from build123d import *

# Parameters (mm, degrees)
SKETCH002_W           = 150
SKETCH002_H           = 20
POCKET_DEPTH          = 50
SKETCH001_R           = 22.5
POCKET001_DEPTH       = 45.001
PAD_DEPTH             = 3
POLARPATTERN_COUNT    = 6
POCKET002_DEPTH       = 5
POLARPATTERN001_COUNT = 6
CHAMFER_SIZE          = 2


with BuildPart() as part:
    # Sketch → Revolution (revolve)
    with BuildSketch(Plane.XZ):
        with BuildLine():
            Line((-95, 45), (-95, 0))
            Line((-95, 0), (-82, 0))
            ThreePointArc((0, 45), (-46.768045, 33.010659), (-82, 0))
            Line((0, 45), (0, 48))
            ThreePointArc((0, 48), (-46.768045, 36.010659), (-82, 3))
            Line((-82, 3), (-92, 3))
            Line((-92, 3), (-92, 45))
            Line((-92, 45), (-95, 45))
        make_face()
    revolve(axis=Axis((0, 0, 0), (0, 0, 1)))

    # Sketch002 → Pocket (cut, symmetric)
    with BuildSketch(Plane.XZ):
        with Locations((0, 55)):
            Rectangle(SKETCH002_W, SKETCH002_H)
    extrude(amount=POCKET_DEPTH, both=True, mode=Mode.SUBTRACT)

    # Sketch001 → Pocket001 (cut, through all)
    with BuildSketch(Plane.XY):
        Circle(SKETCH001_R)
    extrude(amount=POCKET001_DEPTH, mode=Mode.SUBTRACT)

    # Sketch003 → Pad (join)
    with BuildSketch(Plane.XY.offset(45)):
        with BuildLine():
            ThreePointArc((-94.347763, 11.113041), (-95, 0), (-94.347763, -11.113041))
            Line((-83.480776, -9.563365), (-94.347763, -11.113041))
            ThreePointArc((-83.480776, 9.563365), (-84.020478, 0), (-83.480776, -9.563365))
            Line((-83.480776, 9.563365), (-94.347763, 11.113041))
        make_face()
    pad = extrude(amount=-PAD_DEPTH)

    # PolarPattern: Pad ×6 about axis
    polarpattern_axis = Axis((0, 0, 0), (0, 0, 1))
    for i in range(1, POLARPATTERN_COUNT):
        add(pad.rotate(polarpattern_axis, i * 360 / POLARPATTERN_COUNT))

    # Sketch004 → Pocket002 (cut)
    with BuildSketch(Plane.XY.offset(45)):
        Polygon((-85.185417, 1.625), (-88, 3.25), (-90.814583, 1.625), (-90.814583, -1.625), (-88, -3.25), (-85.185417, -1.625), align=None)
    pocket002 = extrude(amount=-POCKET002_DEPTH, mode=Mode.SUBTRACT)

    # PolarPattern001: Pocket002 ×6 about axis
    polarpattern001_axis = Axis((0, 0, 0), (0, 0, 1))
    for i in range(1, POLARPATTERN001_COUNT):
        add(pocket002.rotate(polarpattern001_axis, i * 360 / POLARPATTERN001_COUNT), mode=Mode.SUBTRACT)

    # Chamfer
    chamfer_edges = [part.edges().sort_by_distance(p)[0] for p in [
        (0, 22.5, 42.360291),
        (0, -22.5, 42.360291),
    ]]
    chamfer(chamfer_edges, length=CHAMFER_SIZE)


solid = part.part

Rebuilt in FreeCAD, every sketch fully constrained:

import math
import FreeCAD as App
import Part
import Sketcher
Q = App.Units.Quantity


def edges_at(feature, points):
    """Names of the edges that pass closest to the given points."""
    edges = feature.Shape.Edges
    near = lambda p: min(range(len(edges)), key=lambda i: edges[i].distToShape(Part.Vertex(*p))[0])
    return sorted({f"Edge{near(p) + 1}" for p in points})

doc = App.newDocument("Part")
body = doc.addObject("PartDesign::Body", "Body")

sketch1 = body.newObject("Sketcher::SketchObject", "Sketch")
sketch1.AttachmentSupport = (doc.getObject("XZ_Plane"), [""])
sketch1.MapMode = "FlatFace"
sketch1.addGeometry([
    Part.LineSegment(App.Vector(-95, 45, 0), App.Vector(-95, 0, 0)),
    Part.LineSegment(App.Vector(-95, 0, 0), App.Vector(-82, 0, 0)),
    Part.ArcOfCircle(Part.Circle(App.Vector(0, -52.2, 0), App.Vector(0, 0, 1), 97.2), math.radians(90), math.radians(148)),
    Part.LineSegment(App.Vector(0, 45, 0), App.Vector(0, 48, 0)),
    Part.ArcOfCircle(Part.Circle(App.Vector(0, -49.2, 0), App.Vector(0, 0, 1), 97.2), math.radians(90), math.radians(148)),
    Part.LineSegment(App.Vector(-82, 3, 0), App.Vector(-92, 3, 0)),
    Part.LineSegment(App.Vector(-92, 3, 0), App.Vector(-92, 45, 0)),
    Part.LineSegment(App.Vector(-92, 45, 0), App.Vector(-95, 45, 0)),
], False)
sketch1.addConstraint([
    Sketcher.Constraint("Coincident", 0, 2, 1, 1),
    Sketcher.Constraint("Coincident", 1, 2, 2, 2),
    Sketcher.Constraint("Coincident", 2, 1, 3, 1),
    Sketcher.Constraint("Coincident", 3, 2, 4, 1),
    Sketcher.Constraint("Coincident", 4, 2, 5, 1),
    Sketcher.Constraint("Coincident", 5, 2, 6, 1),
    Sketcher.Constraint("Coincident", 6, 2, 7, 1),
    Sketcher.Constraint("Coincident", 7, 2, 0, 1),
    Sketcher.Constraint("Vertical", 0),
    Sketcher.Constraint("Horizontal", 1),
    Sketcher.Constraint("Vertical", 3),
    Sketcher.Constraint("Horizontal", 5),
    Sketcher.Constraint("Vertical", 6),
    Sketcher.Constraint("Horizontal", 7),
    Sketcher.Constraint("Equal", 2, 4),
    Sketcher.Constraint("PointOnObject", 2, 3, -2),
    Sketcher.Constraint("PointOnObject", 4, 3, -2),
    Sketcher.Constraint("PointOnObject", 0, 2, -1),
    Sketcher.Constraint("PointOnObject", 2, 1, -2),
    Sketcher.Constraint("Horizontal", 2, 1, 6, 2),
    Sketcher.Constraint("Vertical", 1, 2, 4, 2),
    Sketcher.Constraint("Equal", 7, 3),
    Sketcher.Constraint("DistanceX", 1, 1, 1, 2, Q("13 mm")),
    Sketcher.Constraint("DistanceX", 5, 2, 5, 1, Q("10 mm")),
    Sketcher.Constraint("DistanceY", 0, 2, 0, 1, Q("45 mm")),
    Sketcher.Constraint("DistanceX", 0, 2, -1, 1, Q("95 mm")),
])
revolution = body.newObject("PartDesign::Revolution", "Revolution")
revolution.Profile = sketch1
revolution.ReferenceAxis = (sketch1, ["V_Axis"])
revolution.Angle = 360

sketch2 = body.newObject("Sketcher::SketchObject", "Sketch001")
sketch2.AttachmentSupport = (doc.getObject("XZ_Plane"), [""])
sketch2.MapMode = "FlatFace"
sketch2.addGeometry([
    Part.LineSegment(App.Vector(-75, 65, 0), App.Vector(-75, 45, 0)),
    Part.LineSegment(App.Vector(-75, 45, 0), App.Vector(75, 45, 0)),
    Part.LineSegment(App.Vector(75, 45, 0), App.Vector(75, 65, 0)),
    Part.LineSegment(App.Vector(75, 65, 0), App.Vector(-75, 65, 0)),
], False)
sketch2.addConstraint([
    Sketcher.Constraint("Coincident", 0, 2, 1, 1),
    Sketcher.Constraint("Coincident", 1, 2, 2, 1),
    Sketcher.Constraint("Coincident", 2, 2, 3, 1),
    Sketcher.Constraint("Coincident", 3, 2, 0, 1),
    Sketcher.Constraint("Vertical", 0),
    Sketcher.Constraint("Horizontal", 1),
    Sketcher.Constraint("Vertical", 2),
    Sketcher.Constraint("Horizontal", 3),
    Sketcher.Constraint("DistanceX", 1, 1, 1, 2, Q("150 mm")),
    Sketcher.Constraint("DistanceY", 0, 2, 0, 1, Q("20 mm")),
    Sketcher.Constraint("DistanceX", 0, 2, -1, 1, Q("75 mm")),
    Sketcher.Constraint("DistanceY", -1, 1, 0, 2, Q("45 mm")),
])
pocket1 = body.newObject("PartDesign::Pocket", "Pocket")
pocket1.Profile = sketch2
pocket1.Length = 100
pocket1.Midplane = True

sketch3 = body.newObject("Sketcher::SketchObject", "Sketch002")
sketch3.AttachmentSupport = (doc.getObject("XY_Plane"), [""])
sketch3.MapMode = "FlatFace"
sketch3.addGeometry(Part.Circle(App.Vector(0, 0, 0), App.Vector(0, 0, 1), 22), False)
sketch3.addConstraint([
    Sketcher.Constraint("Coincident", 0, 3, -1, 1),
    Sketcher.Constraint("Diameter", 0, Q("45 mm")),
])
pocket2 = body.newObject("PartDesign::Pocket", "Pocket001")
pocket2.Profile = sketch3
pocket2.Type = "ThroughAll"
pocket2.Reversed = True

sketch4 = body.newObject("Sketcher::SketchObject", "Sketch003")
sketch4.AttachmentSupport = (doc.getObject("XY_Plane"), [""])
sketch4.MapMode = "FlatFace"
sketch4.AttachmentOffset = App.Placement(App.Vector(0, 0, 45), App.Rotation())
sketch4.addGeometry([
    Part.ArcOfCircle(Part.Circle(App.Vector(0, 0, 0), App.Vector(0, 0, 1), 95), math.radians(173.28), math.radians(186.72)),
    Part.LineSegment(App.Vector(-94, -11, 0), App.Vector(-83, -10, 0)),
    Part.ArcOfCircle(Part.Circle(App.Vector(1, 0, 0), App.Vector(0, 0, 1), 85), math.radians(173.54), math.radians(186.46)),
    Part.LineSegment(App.Vector(-83, 10, 0), App.Vector(-94, 11, 0)),
], False)
sketch4.addConstraint([
    Sketcher.Constraint("Coincident", 0, 2, 1, 1),
    Sketcher.Constraint("Coincident", 1, 2, 2, 2),
    Sketcher.Constraint("Coincident", 2, 1, 3, 1),
    Sketcher.Constraint("Coincident", 3, 2, 0, 1),
    Sketcher.Constraint("Symmetric", 1, 2, 2, 1, -1),
    Sketcher.Constraint("Symmetric", 0, 2, 3, 2, -1),
    Sketcher.Constraint("Radius", 0, Q("95.000049 mm")),
    Sketcher.Constraint("Radius", 2, Q("84.999897 mm")),
    Sketcher.Constraint("DistanceX", -1, 1, 2, 3, Q("0.979419 mm")),
    Sketcher.Constraint("DistanceY", 0, 2, -1, 1, Q("11.113041 mm")),
    Sketcher.Constraint("DistanceX", 0, 3, 2, 3, Q("0.97937 mm")),
    Sketcher.Constraint("DistanceY", 1, 2, 2, 1, Q("19.12673 mm")),
])
pad1 = body.newObject("PartDesign::Pad", "Pad")
pad1.Profile = sketch4
pad1.Length = 3
pad1.Reversed = True
doc.recompute()

polarpattern = body.newObject("PartDesign::PolarPattern", "PolarPattern")
polarpattern.Originals = [pad1]
polarpattern.Axis = (doc.getObject("Z_Axis"), [""])
polarpattern.Angle = 360
polarpattern.Occurrences = 6
body.Tip = polarpattern

sketch5 = body.newObject("Sketcher::SketchObject", "Sketch004")
sketch5.AttachmentSupport = (doc.getObject("XY_Plane"), [""])
sketch5.MapMode = "FlatFace"
sketch5.AttachmentOffset = App.Placement(App.Vector(0, 0, 45), App.Rotation())
sketch5.addGeometry([
    Part.LineSegment(App.Vector(-85.2, 1.6, 0), App.Vector(-88, 3.2, 0)),
    Part.LineSegment(App.Vector(-88, 3.2, 0), App.Vector(-90.8, 1.6, 0)),
    Part.LineSegment(App.Vector(-90.8, 1.6, 0), App.Vector(-90.8, -1.6, 0)),
    Part.LineSegment(App.Vector(-90.8, -1.6, 0), App.Vector(-88, -3.2, 0)),
    Part.LineSegment(App.Vector(-88, -3.2, 0), App.Vector(-85.2, -1.6, 0)),
    Part.LineSegment(App.Vector(-85.2, -1.6, 0), App.Vector(-85.2, 1.6, 0)),
], False)
sketch5.addConstraint([
    Sketcher.Constraint("Coincident", 0, 2, 1, 1),
    Sketcher.Constraint("Coincident", 1, 2, 2, 1),
    Sketcher.Constraint("Coincident", 2, 2, 3, 1),
    Sketcher.Constraint("Coincident", 3, 2, 4, 1),
    Sketcher.Constraint("Coincident", 4, 2, 5, 1),
    Sketcher.Constraint("Coincident", 5, 2, 0, 1),
    Sketcher.Constraint("Vertical", 2),
    Sketcher.Constraint("Vertical", 5),
    Sketcher.Constraint("Symmetric", 0, 2, 3, 2, -1),
    Sketcher.Constraint("Parallel", 0, 3),
    Sketcher.Constraint("Parallel", 1, 4),
    Sketcher.Constraint("Horizontal", 2, 2, 4, 2),
    Sketcher.Constraint("Horizontal", 1, 2, 5, 2),
    Sketcher.Constraint("Angle", 0, Q("150.000004 deg")),
    Sketcher.Constraint("DistanceX", 0, 2, -1, 1, Q("88 mm")),
    Sketcher.Constraint("DistanceY", 2, 2, 2, 1, Q("3.25 mm")),
    Sketcher.Constraint("DistanceY", 3, 2, 0, 2, Q("6.5 mm")),
])
pocket3 = body.newObject("PartDesign::Pocket", "Pocket002")
pocket3.Profile = sketch5
pocket3.Length = 5
doc.recompute()

polarpattern2 = body.newObject("PartDesign::PolarPattern", "PolarPattern001")
polarpattern2.Originals = [pocket3]
polarpattern2.Axis = (doc.getObject("Z_Axis"), [""])
polarpattern2.Angle = 360
polarpattern2.Occurrences = 6
body.Tip = polarpattern2
doc.recompute()

chamfer = body.newObject("PartDesign::Chamfer", "Chamfer")
chamfer.Base = (polarpattern2, edges_at(polarpattern2, [(0, 22.5, 42.36), (0, -22.5, 42.36)]))
chamfer.Size = 2

doc.recompute()
